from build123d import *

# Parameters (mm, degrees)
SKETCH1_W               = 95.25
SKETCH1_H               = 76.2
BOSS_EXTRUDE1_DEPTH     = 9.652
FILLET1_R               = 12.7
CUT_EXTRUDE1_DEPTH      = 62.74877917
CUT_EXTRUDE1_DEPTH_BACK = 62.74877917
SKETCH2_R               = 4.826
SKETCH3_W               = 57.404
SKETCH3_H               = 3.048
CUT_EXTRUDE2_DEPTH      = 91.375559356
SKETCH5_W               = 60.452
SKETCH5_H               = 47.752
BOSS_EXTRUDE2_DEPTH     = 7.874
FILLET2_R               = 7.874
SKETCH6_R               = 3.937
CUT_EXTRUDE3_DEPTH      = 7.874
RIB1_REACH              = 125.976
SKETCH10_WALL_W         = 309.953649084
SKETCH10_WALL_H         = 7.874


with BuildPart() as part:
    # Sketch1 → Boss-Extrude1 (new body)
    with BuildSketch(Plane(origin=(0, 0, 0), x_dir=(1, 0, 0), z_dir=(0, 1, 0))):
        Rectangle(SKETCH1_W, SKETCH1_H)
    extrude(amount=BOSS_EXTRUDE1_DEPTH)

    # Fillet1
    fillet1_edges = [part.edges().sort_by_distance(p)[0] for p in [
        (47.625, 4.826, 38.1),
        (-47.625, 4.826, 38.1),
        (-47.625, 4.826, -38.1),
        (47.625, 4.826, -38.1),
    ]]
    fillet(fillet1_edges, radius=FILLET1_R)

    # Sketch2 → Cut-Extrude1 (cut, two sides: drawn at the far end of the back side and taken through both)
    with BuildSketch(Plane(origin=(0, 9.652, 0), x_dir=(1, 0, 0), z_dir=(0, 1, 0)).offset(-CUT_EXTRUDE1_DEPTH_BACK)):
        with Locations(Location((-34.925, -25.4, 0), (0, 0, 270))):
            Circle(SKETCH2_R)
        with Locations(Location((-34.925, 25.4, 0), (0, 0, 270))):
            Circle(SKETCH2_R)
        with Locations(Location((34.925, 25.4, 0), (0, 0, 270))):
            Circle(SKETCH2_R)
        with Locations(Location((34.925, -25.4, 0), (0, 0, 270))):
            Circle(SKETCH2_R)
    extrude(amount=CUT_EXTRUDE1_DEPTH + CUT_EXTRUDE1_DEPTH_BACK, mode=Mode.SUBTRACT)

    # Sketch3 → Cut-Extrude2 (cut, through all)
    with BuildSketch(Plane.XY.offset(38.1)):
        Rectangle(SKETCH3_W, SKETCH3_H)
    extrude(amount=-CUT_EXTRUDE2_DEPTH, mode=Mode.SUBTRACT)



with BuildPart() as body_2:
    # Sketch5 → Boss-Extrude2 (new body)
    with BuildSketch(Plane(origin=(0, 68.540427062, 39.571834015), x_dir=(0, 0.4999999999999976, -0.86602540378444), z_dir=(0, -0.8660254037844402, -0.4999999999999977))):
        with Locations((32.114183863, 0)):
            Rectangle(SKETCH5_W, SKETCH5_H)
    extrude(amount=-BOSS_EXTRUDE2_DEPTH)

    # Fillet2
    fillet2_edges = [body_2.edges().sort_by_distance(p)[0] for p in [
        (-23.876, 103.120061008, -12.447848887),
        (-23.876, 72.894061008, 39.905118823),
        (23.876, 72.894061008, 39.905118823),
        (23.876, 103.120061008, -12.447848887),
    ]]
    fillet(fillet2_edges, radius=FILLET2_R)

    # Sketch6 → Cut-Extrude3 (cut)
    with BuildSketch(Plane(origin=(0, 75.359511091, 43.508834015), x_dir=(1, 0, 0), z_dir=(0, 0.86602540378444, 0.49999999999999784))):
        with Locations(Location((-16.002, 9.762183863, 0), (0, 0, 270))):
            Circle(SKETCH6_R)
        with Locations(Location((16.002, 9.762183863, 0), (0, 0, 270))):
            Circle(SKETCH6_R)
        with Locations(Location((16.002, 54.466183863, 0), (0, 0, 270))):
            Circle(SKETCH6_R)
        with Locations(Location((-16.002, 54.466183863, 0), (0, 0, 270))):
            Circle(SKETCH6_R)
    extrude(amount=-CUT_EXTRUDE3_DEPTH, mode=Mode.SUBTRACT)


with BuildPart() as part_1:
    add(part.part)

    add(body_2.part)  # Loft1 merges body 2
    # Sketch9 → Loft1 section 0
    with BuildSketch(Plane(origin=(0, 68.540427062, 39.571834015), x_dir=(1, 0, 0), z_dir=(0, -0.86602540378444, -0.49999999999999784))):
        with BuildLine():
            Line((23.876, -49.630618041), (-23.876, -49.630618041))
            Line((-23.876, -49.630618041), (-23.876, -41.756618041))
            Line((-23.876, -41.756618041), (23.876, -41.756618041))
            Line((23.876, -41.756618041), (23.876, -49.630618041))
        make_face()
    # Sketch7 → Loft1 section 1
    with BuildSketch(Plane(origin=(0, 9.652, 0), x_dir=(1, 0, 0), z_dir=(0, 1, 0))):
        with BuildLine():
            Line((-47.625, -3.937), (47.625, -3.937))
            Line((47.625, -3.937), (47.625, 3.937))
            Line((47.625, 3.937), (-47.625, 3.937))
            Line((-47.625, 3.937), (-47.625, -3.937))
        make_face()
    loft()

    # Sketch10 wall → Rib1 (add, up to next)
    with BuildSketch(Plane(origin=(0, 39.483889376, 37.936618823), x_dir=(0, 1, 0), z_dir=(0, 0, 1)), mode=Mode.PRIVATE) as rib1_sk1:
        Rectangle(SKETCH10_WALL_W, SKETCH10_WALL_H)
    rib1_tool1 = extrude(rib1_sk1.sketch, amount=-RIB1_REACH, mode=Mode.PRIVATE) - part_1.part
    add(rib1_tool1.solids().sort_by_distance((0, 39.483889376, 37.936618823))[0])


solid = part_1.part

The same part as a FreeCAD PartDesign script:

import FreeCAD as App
import Part
import Sketcher
from FreeCAD import Vector
Q = App.Units.Quantity


def edges_at(feature, points):
    """Names of the edges that pass closest to the given points."""
    edges = feature.Shape.Edges
    near = lambda p: min(range(len(edges)), key=lambda i: edges[i].distToShape(Part.Vertex(*p))[0])
    return sorted({f"Edge{near(p) + 1}" for p in points})

doc = App.newDocument("Part")
body = doc.addObject("PartDesign::Body", "Body")

sketch1 = doc.addObject("Sketcher::SketchObject", "Sketch")
body.addObject(sketch1)
sketch1.AttachmentSupport = (doc.XZ_Plane, [""])
sketch1.MapMode = "FlatFace"
sketch1.addGeometry([
    Part.LineSegment(Vector(-47.625, -38.1, 0), Vector(-47.625, 38.1, 0)),
    Part.LineSegment(Vector(-47.625, 38.1, 0), Vector(47.625, 38.1, 0)),
    Part.LineSegment(Vector(47.625, 38.1, 0), Vector(47.625, -38.1, 0)),
    Part.LineSegment(Vector(47.625, -38.1, 0), Vector(-47.625, -38.1, 0)),
], False)
sketch1.addConstraint([
    Sketcher.Constraint("Coincident", 0, 2, 1, 1),
    Sketcher.Constraint("Coincident", 1, 2, 2, 1),
    Sketcher.Constraint("Coincident", 2, 2, 3, 1),
    Sketcher.Constraint("Coincident", 3, 2, 0, 1),
    Sketcher.Constraint("Vertical", 0),
    Sketcher.Constraint("Horizontal", 1),
    Sketcher.Constraint("Vertical", 2),
    Sketcher.Constraint("Horizontal", 3),
    Sketcher.Constraint("Symmetric", 0, 2, 2, 2, -1, 1),
    Sketcher.Constraint("DistanceY", 0, 1, 0, 2, Q("3 in")),
    Sketcher.Constraint("DistanceX", 1, 1, 1, 2, Q("3.75 in")),
])
pad1 = doc.addObject("PartDesign::Pad", "Pad")
body.addObject(pad1)
pad1.Profile = sketch1
pad1.Length = Q("0.38 in")
pad1.Reversed = True
doc.recompute()

fillet = doc.addObject("PartDesign::Fillet", "Fillet")
body.addObject(fillet)
fillet.Base = (pad1, edges_at(pad1, [
    (47.625, 4.826, 38.1),
    (-47.625, 4.826, 38.1),
    (-47.625, 4.826, -38.1),
    (47.625, 4.826, -38.1),
]))
fillet.Radius = Q("0.5 in")

sketch2 = doc.addObject("Sketcher::SketchObject", "Sketch001")
body.addObject(sketch2)
sketch2.AttachmentSupport = (doc.XZ_Plane, [""])
sketch2.MapMode = "FlatFace"
sketch2.AttachmentOffset = App.Placement(Vector(0, 0, -0.38 * 25.4), App.Rotation())
sketch2.addGeometry([
    Part.Circle(Vector(-34.925, 25.4, 0), Vector(0, 0, 1), 4.826),
    Part.Circle(Vector(-34.925, -25.4, 0), Vector(0, 0, 1), 4.826),
    Part.Circle(Vector(34.925, -25.4, 0), Vector(0, 0, 1), 4.826),
    Part.Circle(Vector(34.925, 25.4, 0), Vector(0, 0, 1), 4.826),
], False)
sketch2.addConstraint([
    Sketcher.Constraint("Equal", 0, 1),
    Sketcher.Constraint("Equal", 1, 2),
    Sketcher.Constraint("Equal", 2, 3),
    Sketcher.Constraint("Symmetric", 0, 3, 2, 3, -1, 1),
    Sketcher.Constraint("Symmetric", 1, 3, 3, 3, -1, 1),
    Sketcher.Constraint("Symmetric", 1, 3, 2, 3, -2),
    Sketcher.Constraint("Diameter", 0, Q("0.38 in")),
    Sketcher.Constraint("DistanceY", -1, 1, 0, 3, Q("1 in")),
    Sketcher.Constraint("DistanceX", 1, 3, 2, 3, Q("2.75 in")),
])
pocket1 = doc.addObject("PartDesign::Pocket", "Pocket")
body.addObject(pocket1)
pocket1.Profile = sketch2
pocket1.Type = "ThroughAll"
pocket1.Midplane = True

sketch3 = doc.addObject("Sketcher::SketchObject", "Sketch002")
body.addObject(sketch3)
sketch3.AttachmentSupport = (doc.XY_Plane, [""])
sketch3.MapMode = "FlatFace"
sketch3.AttachmentOffset = App.Placement(Vector(0, 0, 1.5 * 25.4), App.Rotation())
sketch3.addGeometry([
    Part.LineSegment(Vector(-28.702, 1.524, 0), Vector(-28.702, -1.524, 0)),
    Part.LineSegment(Vector(-28.702, -1.524, 0), Vector(28.702, -1.524, 0)),
    Part.LineSegment(Vector(28.702, -1.524, 0), Vector(28.702, 1.524, 0)),
    Part.LineSegment(Vector(28.702, 1.524, 0), Vector(-28.702, 1.524, 0)),
], False)
sketch3.addConstraint([
    Sketcher.Constraint("Coincident", 0, 2, 1, 1),
    Sketcher.Constraint("Coincident", 1, 2, 2, 1),
    Sketcher.Constraint("Coincident", 2, 2, 3, 1),
    Sketcher.Constraint("Coincident", 3, 2, 0, 1),
    Sketcher.Constraint("Vertical", 0),
    Sketcher.Constraint("Horizontal", 1),
    Sketcher.Constraint("Vertical", 2),
    Sketcher.Constraint("Horizontal", 3),
    Sketcher.Constraint("Symmetric", 0, 2, 2, 2, -1, 1),
    Sketcher.Constraint("DistanceX", 1, 1, 1, 2, Q("2.26 in")),
    Sketcher.Constraint("DistanceY", 0, 2, 0, 1, Q("0.12 in")),
])
pocket2 = doc.addObject("PartDesign::Pocket", "Pocket001")
body.addObject(pocket2)
pocket2.Profile = sketch3
pocket2.Type = "ThroughAll"
body2 = doc.addObject("PartDesign::Body", "Body001")

sketch4 = doc.addObject("Sketcher::SketchObject", "Sketch003")
body2.addObject(sketch4)
sketch4.Placement = App.Placement(Vector(0, 68.540427, 39.571834), App.Rotation(Vector(0, 0.5, -0.866025404), Vector(1, 0, 0), Vector(0, -0.866025404, -0.5), "ZXY"))
sketch4.addGeometry([
    Part.LineSegment(Vector(1.888184, 23.876, 0), Vector(1.888184, -23.876, 0)),
    Part.LineSegment(Vector(1.888184, -23.876, 0), Vector(62.340184, -23.876, 0)),
    Part.LineSegment(Vector(62.340184, -23.876, 0), Vector(62.340184, 23.876, 0)),
    Part.LineSegment(Vector(62.340184, 23.876, 0), Vector(1.888184, 23.876, 0)),
], False)
sketch4.addConstraint([
    Sketcher.Constraint("Coincident", 0, 2, 1, 1),
    Sketcher.Constraint("Coincident", 1, 2, 2, 1),
    Sketcher.Constraint("Coincident", 2, 2, 3, 1),
    Sketcher.Constraint("Coincident", 3, 2, 0, 1),
    Sketcher.Constraint("Vertical", 0),
    Sketcher.Constraint("Horizontal", 1),
    Sketcher.Constraint("Vertical", 2),
    Sketcher.Constraint("Horizontal", 3),
    Sketcher.Constraint("DistanceX", 1, 1, 1, 2, Q("2.38 in")),
    Sketcher.Constraint("DistanceY", 0, 2, 0, 1, Q("1.88 in")),
    Sketcher.Constraint("DistanceY", 0, 2, -1, 1, Q("0.94 in")),
    Sketcher.Constraint("DistanceX", -1, 1, 0, 2, Q("1.888184 mm")),
])
pad2 = doc.addObject("PartDesign::Pad", "Pad001")
body2.addObject(pad2)
pad2.Profile = sketch4
pad2.Length = Q("0.31 in")
pad2.Reversed = True
doc.recompute()

fillet2 = doc.addObject("PartDesign::Fillet", "Fillet001")
body2.addObject(fillet2)
fillet2.Base = (pad2, edges_at(pad2, [
    (-23.876, 103.12, -12.448),
    (-23.876, 72.894, 39.905),
    (23.876, 72.894, 39.905),
    (23.876, 103.12, -12.448),
]))
fillet2.Radius = Q("0.31 in")

sketch5 = doc.addObject("Sketcher::SketchObject", "Sketch004")
body2.addObject(sketch5)
sketch5.Placement = App.Placement(Vector(0, 75.359511, 43.508834), App.Rotation(Vector(1, 0, 0), Vector(0, 0.5, -0.866025404), Vector(0, 0.866025404, 0.5), "ZXY"))
sketch5.addGeometry([
    Part.Circle(Vector(-16.002, 9.762184, 0), Vector(0, 0, 1), 3.937),
    Part.Circle(Vector(16.002, 9.762184, 0), Vector(0, 0, 1), 3.937),
    Part.Circle(Vector(16.002, 54.466184, 0), Vector(0, 0, 1), 3.937),
    Part.Circle(Vector(-16.002, 54.466184, 0), Vector(0, 0, 1), 3.937),
], False)
sketch5.addConstraint([
    Sketcher.Constraint("Equal", 0, 1),
    Sketcher.Constraint("Equal", 1, 2),
    Sketcher.Constraint("Equal", 2, 3),
    Sketcher.Constraint("Symmetric", 0, 3, 1, 3, -2),
    Sketcher.Constraint("Symmetric", 2, 3, 3, 3, -2),
    Sketcher.Constraint("Vertical", 1, 3, 2, 3),
    Sketcher.Constraint("Diameter", 0, Q("0.31 in")),
    Sketcher.Constraint("DistanceX", 0, 3, -1, 1, Q("0.63 in")),
    Sketcher.Constraint("DistanceY", 1, 3, 2, 3, Q("1.76 in")),
    Sketcher.Constraint("DistanceY", -1, 1, 0, 3, Q("9.762184 mm")),
])
pocket3 = doc.addObject("PartDesign::Pocket", "Pocket002")
body2.addObject(pocket3)
pocket3.Profile = sketch5
pocket3.Length = Q("0.31 in")
body.AllowCompound = True
doc.recompute()

boolean = doc.addObject("PartDesign::Boolean", "Boolean")
body.addObject(boolean)
boolean.Type = "Fuse"
boolean.addObjects([body2])

sketch6 = doc.addObject("Sketcher::SketchObject", "Sketch005")
body.addObject(sketch6)
sketch6.Placement = App.Placement(Vector(0, 68.540427, 39.571834), App.Rotation(Vector(1, 0, 0), Vector(0, -0.5, 0.866025404), Vector(0, -0.866025404, -0.5), "ZXY"))
sketch6.addGeometry([
    Part.LineSegment(Vector(-23.876, -49.630618, 0), Vector(23.876, -49.630618, 0)),
    Part.LineSegment(Vector(23.876, -49.630618, 0), Vector(23.876, -41.756618, 0)),
    Part.LineSegment(Vector(23.876, -41.756618, 0), Vector(-23.876, -41.756618, 0)),
    Part.LineSegment(Vector(-23.876, -41.756618, 0), Vector(-23.876, -49.630618, 0)),
], False)
sketch6.addConstraint([
    Sketcher.Constraint("Coincident", 0, 2, 1, 1),
    Sketcher.Constraint("Coincident", 1, 2, 2, 1),
    Sketcher.Constraint("Coincident", 2, 2, 3, 1),
    Sketcher.Constraint("Coincident", 3, 2, 0, 1),
    Sketcher.Constraint("Horizontal", 0),
    Sketcher.Constraint("Vertical", 1),
    Sketcher.Constraint("Horizontal", 2),
    Sketcher.Constraint("Vertical", 3),
    Sketcher.Constraint("DistanceX", 0, 1, 0, 2, Q("1.88 in")),
    Sketcher.Constraint("DistanceY", 1, 1, 1, 2, Q("0.31 in")),
    Sketcher.Constraint("DistanceX", -1, 1, 0, 2, Q("0.94 in")),
    Sketcher.Constraint("DistanceY", 0, 2, -1, 1, Q("49.630618 mm")),
])

sketch7 = doc.addObject("Sketcher::SketchObject", "Sketch006")
body.addObject(sketch7)
sketch7.AttachmentSupport = (doc.XZ_Plane, [""])
sketch7.MapMode = "FlatFace"
sketch7.AttachmentOffset = App.Placement(Vector(0, 0, -0.38 * 25.4), App.Rotation())
sketch7.addGeometry([
    Part.LineSegment(Vector(-47.625, 3.937, 0), Vector(47.625, 3.937, 0)),
    Part.LineSegment(Vector(47.625, 3.937, 0), Vector(47.625, -3.937, 0)),
    Part.LineSegment(Vector(47.625, -3.937, 0), Vector(-47.625, -3.937, 0)),
    Part.LineSegment(Vector(-47.625, -3.937, 0), Vector(-47.625, 3.937, 0)),
], False)
sketch7.addConstraint([
    Sketcher.Constraint("Coincident", 0, 2, 1, 1),
    Sketcher.Constraint("Coincident", 1, 2, 2, 1),
    Sketcher.Constraint("Coincident", 2, 2, 3, 1),
    Sketcher.Constraint("Coincident", 3, 2, 0, 1),
    Sketcher.Constraint("Horizontal", 0),
    Sketcher.Constraint("Vertical", 1),
    Sketcher.Constraint("Horizontal", 2),
    Sketcher.Constraint("Vertical", 3),
    Sketcher.Constraint("Symmetric", 0, 2, 2, 2, -1, 1),
    Sketcher.Constraint("DistanceX", 0, 1, 0, 2, Q("3.75 in")),
    Sketcher.Constraint("DistanceY", 1, 2, 1, 1, Q("0.31 in")),
])

additiveloft = doc.addObject("PartDesign::AdditiveLoft", "AdditiveLoft")
body.addObject(additiveloft)
additiveloft.Profile = sketch6
additiveloft.Sections = [sketch7]

sketch8 = doc.addObject("Sketcher::SketchObject", "Sketch007")
body.addObject(sketch8)
sketch8.AttachmentSupport = (doc.XY_Plane, [""])
sketch8.MapMode = "FlatFace"
sketch8.AttachmentOffset = App.Placement(Vector(0, 0, 37.936619), App.Rotation())
sketch8.addGeometry([
    Part.LineSegment(Vector(-3.937, -115.492935, 0), Vector(3.937, -115.492935, 0)),
    Part.LineSegment(Vector(3.937, -115.492935, 0), Vector(3.937, 194.460714, 0)),
    Part.LineSegment(Vector(3.937, 194.460714, 0), Vector(-3.937, 194.460714, 0)),
    Part.LineSegment(Vector(-3.937, 194.460714, 0), Vector(-3.937, -115.492935, 0)),
], False)
sketch8.addConstraint([
    Sketcher.Constraint("Coincident", 0, 2, 1, 1),
    Sketcher.Constraint("Coincident", 1, 2, 2, 1),
    Sketcher.Constraint("Coincident", 2, 2, 3, 1),
    Sketcher.Constraint("Coincident", 3, 2, 0, 1),
    Sketcher.Constraint("Horizontal", 0),
    Sketcher.Constraint("Vertical", 1),
    Sketcher.Constraint("Horizontal", 2),
    Sketcher.Constraint("Vertical", 3),
    Sketcher.Constraint("DistanceX", 0, 1, 0, 2, Q("0.31 in")),
    Sketcher.Constraint("DistanceX", -1, 1, 0, 2, Q("0.155 in")),
    Sketcher.Constraint("DistanceY", 1, 1, 1, 2, Q("309.953649 mm")),
    Sketcher.Constraint("DistanceY", 0, 2, -1, 1, Q("115.492935 mm")),
])
pad3 = doc.addObject("PartDesign::Pad", "Pad002")
body.addObject(pad3)
pad3.Profile = sketch8
pad3.Type = "UpToFirst"
pad3.Reversed = True

doc.recompute()
